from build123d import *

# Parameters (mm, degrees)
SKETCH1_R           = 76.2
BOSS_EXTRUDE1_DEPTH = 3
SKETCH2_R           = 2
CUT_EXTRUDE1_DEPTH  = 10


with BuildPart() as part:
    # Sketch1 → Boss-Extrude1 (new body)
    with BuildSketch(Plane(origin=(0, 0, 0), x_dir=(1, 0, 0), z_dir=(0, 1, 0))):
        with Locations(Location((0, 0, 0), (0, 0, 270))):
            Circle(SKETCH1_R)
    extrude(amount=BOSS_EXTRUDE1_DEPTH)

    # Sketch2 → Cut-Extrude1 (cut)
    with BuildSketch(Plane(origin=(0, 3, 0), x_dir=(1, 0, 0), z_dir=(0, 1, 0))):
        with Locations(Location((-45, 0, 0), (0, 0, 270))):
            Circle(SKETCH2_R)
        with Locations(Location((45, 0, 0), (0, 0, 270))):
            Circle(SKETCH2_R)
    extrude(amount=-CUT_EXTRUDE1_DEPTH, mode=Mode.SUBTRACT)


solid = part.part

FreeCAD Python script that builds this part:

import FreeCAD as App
import Part
import Sketcher

V = App.Vector
Q = App.Units.Quantity

doc = App.newDocument("Part")
body = doc.addObject("PartDesign::Body", "Body")

# Sketch on XZ plane
sketch1 = body.newObject("Sketcher::SketchObject", "Sketch")
sketch1.AttachmentSupport = (doc.getObject("XZ_Plane"), [""])
sketch1.MapMode = "FlatFace"
sketch1.addGeometry(Part.Circle(V(0, 0, 0), V(0, 0, 1), 76), False)
sketch1.addConstraint(Sketcher.Constraint("Coincident", 0, 3, -1, 1))
sketch1.addConstraint(Sketcher.Constraint("Diameter", 0, Q("152.4 mm")))
pad1 = body.newObject("PartDesign::Pad", "Pad")
pad1.Profile = sketch1
pad1.Length = 3
pad1.Reversed = True

# Sketch on XZ plane
sketch2 = body.newObject("Sketcher::SketchObject", "Sketch001")
sketch2.AttachmentSupport = (doc.getObject("XZ_Plane"), [""])
sketch2.MapMode = "FlatFace"
sketch2.AttachmentOffset = App.Placement(V(0, 0, -3), App.Rotation())
sketch2.addGeometry(Part.Circle(V(-45, 0, 0), V(0, 0, 1), 2), False)
sketch2.addGeometry(Part.Circle(V(45, 0, 0), V(0, 0, 1), 2), False)
sketch2.addConstraint(Sketcher.Constraint("Equal", 0, 1))
sketch2.addConstraint(Sketcher.Constraint("Symmetric", 0, 3, 1, 3, -1, 1))
sketch2.addConstraint(Sketcher.Constraint("PointOnObject", 0, 3, -1))
sketch2.addConstraint(Sketcher.Constraint("Diameter", 0, Q("4 mm")))
sketch2.addConstraint(Sketcher.Constraint("DistanceX", 0, 3, -1, 1, Q("45 mm")))
pocket1 = body.newObject("PartDesign::Pocket", "Pocket")
pocket1.Profile = sketch2
pocket1.Length = 10
pocket1.Reversed = True

doc.recompute()
